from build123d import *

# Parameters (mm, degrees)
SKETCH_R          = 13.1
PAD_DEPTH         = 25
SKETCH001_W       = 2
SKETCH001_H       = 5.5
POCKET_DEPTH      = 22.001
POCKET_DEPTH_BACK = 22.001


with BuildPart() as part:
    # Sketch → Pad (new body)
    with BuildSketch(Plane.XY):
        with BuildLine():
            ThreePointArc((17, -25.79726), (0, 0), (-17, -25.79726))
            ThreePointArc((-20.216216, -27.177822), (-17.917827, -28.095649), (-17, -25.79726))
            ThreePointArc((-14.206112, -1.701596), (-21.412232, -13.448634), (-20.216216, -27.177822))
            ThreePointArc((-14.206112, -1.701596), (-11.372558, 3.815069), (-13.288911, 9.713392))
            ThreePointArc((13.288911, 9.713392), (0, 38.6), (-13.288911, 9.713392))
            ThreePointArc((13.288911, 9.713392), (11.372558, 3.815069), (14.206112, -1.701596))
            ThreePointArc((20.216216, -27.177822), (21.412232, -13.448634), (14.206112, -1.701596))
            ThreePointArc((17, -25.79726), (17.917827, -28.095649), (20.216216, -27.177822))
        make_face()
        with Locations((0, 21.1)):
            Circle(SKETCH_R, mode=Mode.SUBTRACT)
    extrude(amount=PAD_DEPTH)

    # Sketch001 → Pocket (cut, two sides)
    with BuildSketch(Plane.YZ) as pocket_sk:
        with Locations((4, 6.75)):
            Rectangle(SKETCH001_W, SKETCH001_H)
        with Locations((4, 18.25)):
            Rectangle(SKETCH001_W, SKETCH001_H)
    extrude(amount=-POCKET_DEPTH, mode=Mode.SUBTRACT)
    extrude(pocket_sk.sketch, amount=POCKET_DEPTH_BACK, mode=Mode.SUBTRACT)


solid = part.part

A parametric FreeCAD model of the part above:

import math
import FreeCAD as App
import Part
import Sketcher

doc = App.newDocument("Part")
body = doc.addObject("PartDesign::Body", "Body")

# Sketch on XY plane
sketch1 = doc.addObject("Sketcher::SketchObject", "Sketch")
body.addObject(sketch1)
sketch1.AttachmentSupport = (doc.XY_Plane, [""])
sketch1.MapMode = "FlatFace"
sketch1.addGeometry([
    Part.ArcOfCircle(Part.Circle(App.Vector(0, -18.5, 0), App.Vector(0, 0, 1), 18.5), math.radians(-23.231457), math.radians(203.231457)),  # 0
    Part.ArcOfCircle(Part.Circle(App.Vector(18.608108, -26.487541, 0), App.Vector(0, 0, 1), 1.75), math.radians(156.768552), math.radians(336.768552)),  # 1
    Part.ArcOfCircle(Part.Circle(App.Vector(-0.000001, -18.5, 0), App.Vector(0, 0, 1), 22.000001), math.radians(-23.231454), math.radians(49.779389)),  # 2
    Part.ArcOfCircle(Part.Circle(App.Vector(19.418166, 4.461538, 0), App.Vector(0, 0, 1), 8.071539), math.radians(139.408374), math.radians(229.779386)),  # 3
    Part.ArcOfCircle(Part.Circle(App.Vector(0, 21.1, 0), App.Vector(0, 0, 1), 17.5), math.radians(-40.591632), math.radians(220.591632)),  # 4
    Part.ArcOfCircle(Part.Circle(App.Vector(-19.418166, 4.461538, 0), App.Vector(0, 0, 1), 8.071539), math.radians(-49.779386), math.radians(40.591626)),  # 5
    Part.ArcOfCircle(Part.Circle(App.Vector(0.000001, -18.5, 0), App.Vector(0, 0, 1), 22.000001), math.radians(130.220611), math.radians(203.231454)),  # 6
    Part.ArcOfCircle(Part.Circle(App.Vector(-18.608108, -26.487541, 0), App.Vector(0, 0, 1), 1.75), math.radians(-156.768552), math.radians(23.231448)),  # 7
    Part.Circle(App.Vector(0, 21.1, 0), App.Vector(0, 0, 1), 13.1),  # 8
], False)
sketch1.addConstraint([
    Sketcher.Constraint("Tangent", 0, 1, 1, 1),
    Sketcher.Constraint("Tangent", 1, 2, 2, 1),
    Sketcher.Constraint("Tangent", 2, 2, 3, 2),
    Sketcher.Constraint("Tangent", 3, 1, 4, 1),
    Sketcher.Constraint("Tangent", 4, 2, 5, 2),
    Sketcher.Constraint("Tangent", 5, 1, 6, 1),
    Sketcher.Constraint("Tangent", 6, 2, 7, 1),
    Sketcher.Constraint("Tangent", 7, 2, 0, 2),
    Sketcher.Constraint("Coincident", 2, 3, 0, 3),
    Sketcher.Constraint("Coincident", 6, 3, 0, 3),
    Sketcher.Constraint("Coincident", 8, 3, 4, 3),
    Sketcher.Constraint("Equal", 3, 5),
    Sketcher.Constraint("Equal", 2, 6),
    Sketcher.Constraint("Symmetric", 3, 3, 5, 3, -2),
    Sketcher.Constraint("Horizontal", 1, 3, 7, 3),
    Sketcher.Constraint("Radius", 2, 22.000001),
    Sketcher.Constraint("Diameter", 8, 26.2),
    Sketcher.Constraint("Radius", 0, 18.5),
    Sketcher.Constraint("Radius", 4, 17.5),
    Sketcher.Constraint("DistanceX", -1, 1, 0, 1, 17.0),
    Sketcher.Constraint("DistanceY", 0, 3, -1, 1, 18.5),
    Sketcher.Constraint("DistanceY", -1, 1, 4, 3, 21.1),
    Sketcher.Constraint("Radius", 3, 8.071539),
])
pad1 = doc.addObject("PartDesign::Pad", "Pad")
body.addObject(pad1)
pad1.Profile = sketch1
pad1.Length = 25

# Sketch on YZ plane
sketch2 = doc.addObject("Sketcher::SketchObject", "Sketch001")
body.addObject(sketch2)
sketch2.AttachmentSupport = (doc.YZ_Plane, [""])
sketch2.MapMode = "FlatFace"
sketch2.addGeometry([
    Part.LineSegment(App.Vector(3, 9.5, 0), App.Vector(3, 4, 0)),  # 0
    Part.LineSegment(App.Vector(3, 4, 0), App.Vector(5, 4, 0)),  # 1
    Part.LineSegment(App.Vector(5, 4, 0), App.Vector(5, 9.5, 0)),  # 2
    Part.LineSegment(App.Vector(5, 9.5, 0), App.Vector(3, 9.5, 0)),  # 3
    Part.LineSegment(App.Vector(3, 21, 0), App.Vector(3, 15.5, 0)),  # 4
    Part.LineSegment(App.Vector(3, 15.5, 0), App.Vector(5, 15.5, 0)),  # 5
    Part.LineSegment(App.Vector(5, 15.5, 0), App.Vector(5, 21, 0)),  # 6
    Part.LineSegment(App.Vector(5, 21, 0), App.Vector(3, 21, 0)),  # 7
], False)
sketch2.addConstraint([
    Sketcher.Constraint("Coincident", 0, 2, 1, 1),
    Sketcher.Constraint("Coincident", 1, 2, 2, 1),
    Sketcher.Constraint("Coincident", 2, 2, 3, 1),
    Sketcher.Constraint("Coincident", 3, 2, 0, 1),
    Sketcher.Constraint("Coincident", 4, 2, 5, 1),
    Sketcher.Constraint("Coincident", 5, 2, 6, 1),
    Sketcher.Constraint("Coincident", 6, 2, 7, 1),
    Sketcher.Constraint("Coincident", 7, 2, 4, 1),
    Sketcher.Constraint("Vertical", 0),
    Sketcher.Constraint("Horizontal", 1),
    Sketcher.Constraint("Vertical", 2),
    Sketcher.Constraint("Horizontal", 3),
    Sketcher.Constraint("Vertical", 4),
    Sketcher.Constraint("Horizontal", 5),
    Sketcher.Constraint("Vertical", 6),
    Sketcher.Constraint("Horizontal", 7),
    Sketcher.Constraint("Vertical", 3, 2, 4, 2),
    Sketcher.Constraint("Vertical", 2, 2, 5, 2),
    Sketcher.Constraint("Equal", 2, 4),
    Sketcher.Constraint("DistanceX", 1, 1, 1, 2, 2.0),
    Sketcher.Constraint("DistanceY", 0, 2, 0, 1, 5.5),
    Sketcher.Constraint("DistanceX", -1, 1, 0, 2, 3.0),
    Sketcher.Constraint("DistanceY", -1, 1, 0, 2, 4.0),
    Sketcher.Constraint("DistanceY", -1, 1, 6, 2, 21.0),
])
pocket1 = doc.addObject("PartDesign::Pocket", "Pocket")
body.addObject(pocket1)
pocket1.Profile = sketch2
pocket1.Type = "ThroughAll"
pocket1.Midplane = True

doc.recompute()
